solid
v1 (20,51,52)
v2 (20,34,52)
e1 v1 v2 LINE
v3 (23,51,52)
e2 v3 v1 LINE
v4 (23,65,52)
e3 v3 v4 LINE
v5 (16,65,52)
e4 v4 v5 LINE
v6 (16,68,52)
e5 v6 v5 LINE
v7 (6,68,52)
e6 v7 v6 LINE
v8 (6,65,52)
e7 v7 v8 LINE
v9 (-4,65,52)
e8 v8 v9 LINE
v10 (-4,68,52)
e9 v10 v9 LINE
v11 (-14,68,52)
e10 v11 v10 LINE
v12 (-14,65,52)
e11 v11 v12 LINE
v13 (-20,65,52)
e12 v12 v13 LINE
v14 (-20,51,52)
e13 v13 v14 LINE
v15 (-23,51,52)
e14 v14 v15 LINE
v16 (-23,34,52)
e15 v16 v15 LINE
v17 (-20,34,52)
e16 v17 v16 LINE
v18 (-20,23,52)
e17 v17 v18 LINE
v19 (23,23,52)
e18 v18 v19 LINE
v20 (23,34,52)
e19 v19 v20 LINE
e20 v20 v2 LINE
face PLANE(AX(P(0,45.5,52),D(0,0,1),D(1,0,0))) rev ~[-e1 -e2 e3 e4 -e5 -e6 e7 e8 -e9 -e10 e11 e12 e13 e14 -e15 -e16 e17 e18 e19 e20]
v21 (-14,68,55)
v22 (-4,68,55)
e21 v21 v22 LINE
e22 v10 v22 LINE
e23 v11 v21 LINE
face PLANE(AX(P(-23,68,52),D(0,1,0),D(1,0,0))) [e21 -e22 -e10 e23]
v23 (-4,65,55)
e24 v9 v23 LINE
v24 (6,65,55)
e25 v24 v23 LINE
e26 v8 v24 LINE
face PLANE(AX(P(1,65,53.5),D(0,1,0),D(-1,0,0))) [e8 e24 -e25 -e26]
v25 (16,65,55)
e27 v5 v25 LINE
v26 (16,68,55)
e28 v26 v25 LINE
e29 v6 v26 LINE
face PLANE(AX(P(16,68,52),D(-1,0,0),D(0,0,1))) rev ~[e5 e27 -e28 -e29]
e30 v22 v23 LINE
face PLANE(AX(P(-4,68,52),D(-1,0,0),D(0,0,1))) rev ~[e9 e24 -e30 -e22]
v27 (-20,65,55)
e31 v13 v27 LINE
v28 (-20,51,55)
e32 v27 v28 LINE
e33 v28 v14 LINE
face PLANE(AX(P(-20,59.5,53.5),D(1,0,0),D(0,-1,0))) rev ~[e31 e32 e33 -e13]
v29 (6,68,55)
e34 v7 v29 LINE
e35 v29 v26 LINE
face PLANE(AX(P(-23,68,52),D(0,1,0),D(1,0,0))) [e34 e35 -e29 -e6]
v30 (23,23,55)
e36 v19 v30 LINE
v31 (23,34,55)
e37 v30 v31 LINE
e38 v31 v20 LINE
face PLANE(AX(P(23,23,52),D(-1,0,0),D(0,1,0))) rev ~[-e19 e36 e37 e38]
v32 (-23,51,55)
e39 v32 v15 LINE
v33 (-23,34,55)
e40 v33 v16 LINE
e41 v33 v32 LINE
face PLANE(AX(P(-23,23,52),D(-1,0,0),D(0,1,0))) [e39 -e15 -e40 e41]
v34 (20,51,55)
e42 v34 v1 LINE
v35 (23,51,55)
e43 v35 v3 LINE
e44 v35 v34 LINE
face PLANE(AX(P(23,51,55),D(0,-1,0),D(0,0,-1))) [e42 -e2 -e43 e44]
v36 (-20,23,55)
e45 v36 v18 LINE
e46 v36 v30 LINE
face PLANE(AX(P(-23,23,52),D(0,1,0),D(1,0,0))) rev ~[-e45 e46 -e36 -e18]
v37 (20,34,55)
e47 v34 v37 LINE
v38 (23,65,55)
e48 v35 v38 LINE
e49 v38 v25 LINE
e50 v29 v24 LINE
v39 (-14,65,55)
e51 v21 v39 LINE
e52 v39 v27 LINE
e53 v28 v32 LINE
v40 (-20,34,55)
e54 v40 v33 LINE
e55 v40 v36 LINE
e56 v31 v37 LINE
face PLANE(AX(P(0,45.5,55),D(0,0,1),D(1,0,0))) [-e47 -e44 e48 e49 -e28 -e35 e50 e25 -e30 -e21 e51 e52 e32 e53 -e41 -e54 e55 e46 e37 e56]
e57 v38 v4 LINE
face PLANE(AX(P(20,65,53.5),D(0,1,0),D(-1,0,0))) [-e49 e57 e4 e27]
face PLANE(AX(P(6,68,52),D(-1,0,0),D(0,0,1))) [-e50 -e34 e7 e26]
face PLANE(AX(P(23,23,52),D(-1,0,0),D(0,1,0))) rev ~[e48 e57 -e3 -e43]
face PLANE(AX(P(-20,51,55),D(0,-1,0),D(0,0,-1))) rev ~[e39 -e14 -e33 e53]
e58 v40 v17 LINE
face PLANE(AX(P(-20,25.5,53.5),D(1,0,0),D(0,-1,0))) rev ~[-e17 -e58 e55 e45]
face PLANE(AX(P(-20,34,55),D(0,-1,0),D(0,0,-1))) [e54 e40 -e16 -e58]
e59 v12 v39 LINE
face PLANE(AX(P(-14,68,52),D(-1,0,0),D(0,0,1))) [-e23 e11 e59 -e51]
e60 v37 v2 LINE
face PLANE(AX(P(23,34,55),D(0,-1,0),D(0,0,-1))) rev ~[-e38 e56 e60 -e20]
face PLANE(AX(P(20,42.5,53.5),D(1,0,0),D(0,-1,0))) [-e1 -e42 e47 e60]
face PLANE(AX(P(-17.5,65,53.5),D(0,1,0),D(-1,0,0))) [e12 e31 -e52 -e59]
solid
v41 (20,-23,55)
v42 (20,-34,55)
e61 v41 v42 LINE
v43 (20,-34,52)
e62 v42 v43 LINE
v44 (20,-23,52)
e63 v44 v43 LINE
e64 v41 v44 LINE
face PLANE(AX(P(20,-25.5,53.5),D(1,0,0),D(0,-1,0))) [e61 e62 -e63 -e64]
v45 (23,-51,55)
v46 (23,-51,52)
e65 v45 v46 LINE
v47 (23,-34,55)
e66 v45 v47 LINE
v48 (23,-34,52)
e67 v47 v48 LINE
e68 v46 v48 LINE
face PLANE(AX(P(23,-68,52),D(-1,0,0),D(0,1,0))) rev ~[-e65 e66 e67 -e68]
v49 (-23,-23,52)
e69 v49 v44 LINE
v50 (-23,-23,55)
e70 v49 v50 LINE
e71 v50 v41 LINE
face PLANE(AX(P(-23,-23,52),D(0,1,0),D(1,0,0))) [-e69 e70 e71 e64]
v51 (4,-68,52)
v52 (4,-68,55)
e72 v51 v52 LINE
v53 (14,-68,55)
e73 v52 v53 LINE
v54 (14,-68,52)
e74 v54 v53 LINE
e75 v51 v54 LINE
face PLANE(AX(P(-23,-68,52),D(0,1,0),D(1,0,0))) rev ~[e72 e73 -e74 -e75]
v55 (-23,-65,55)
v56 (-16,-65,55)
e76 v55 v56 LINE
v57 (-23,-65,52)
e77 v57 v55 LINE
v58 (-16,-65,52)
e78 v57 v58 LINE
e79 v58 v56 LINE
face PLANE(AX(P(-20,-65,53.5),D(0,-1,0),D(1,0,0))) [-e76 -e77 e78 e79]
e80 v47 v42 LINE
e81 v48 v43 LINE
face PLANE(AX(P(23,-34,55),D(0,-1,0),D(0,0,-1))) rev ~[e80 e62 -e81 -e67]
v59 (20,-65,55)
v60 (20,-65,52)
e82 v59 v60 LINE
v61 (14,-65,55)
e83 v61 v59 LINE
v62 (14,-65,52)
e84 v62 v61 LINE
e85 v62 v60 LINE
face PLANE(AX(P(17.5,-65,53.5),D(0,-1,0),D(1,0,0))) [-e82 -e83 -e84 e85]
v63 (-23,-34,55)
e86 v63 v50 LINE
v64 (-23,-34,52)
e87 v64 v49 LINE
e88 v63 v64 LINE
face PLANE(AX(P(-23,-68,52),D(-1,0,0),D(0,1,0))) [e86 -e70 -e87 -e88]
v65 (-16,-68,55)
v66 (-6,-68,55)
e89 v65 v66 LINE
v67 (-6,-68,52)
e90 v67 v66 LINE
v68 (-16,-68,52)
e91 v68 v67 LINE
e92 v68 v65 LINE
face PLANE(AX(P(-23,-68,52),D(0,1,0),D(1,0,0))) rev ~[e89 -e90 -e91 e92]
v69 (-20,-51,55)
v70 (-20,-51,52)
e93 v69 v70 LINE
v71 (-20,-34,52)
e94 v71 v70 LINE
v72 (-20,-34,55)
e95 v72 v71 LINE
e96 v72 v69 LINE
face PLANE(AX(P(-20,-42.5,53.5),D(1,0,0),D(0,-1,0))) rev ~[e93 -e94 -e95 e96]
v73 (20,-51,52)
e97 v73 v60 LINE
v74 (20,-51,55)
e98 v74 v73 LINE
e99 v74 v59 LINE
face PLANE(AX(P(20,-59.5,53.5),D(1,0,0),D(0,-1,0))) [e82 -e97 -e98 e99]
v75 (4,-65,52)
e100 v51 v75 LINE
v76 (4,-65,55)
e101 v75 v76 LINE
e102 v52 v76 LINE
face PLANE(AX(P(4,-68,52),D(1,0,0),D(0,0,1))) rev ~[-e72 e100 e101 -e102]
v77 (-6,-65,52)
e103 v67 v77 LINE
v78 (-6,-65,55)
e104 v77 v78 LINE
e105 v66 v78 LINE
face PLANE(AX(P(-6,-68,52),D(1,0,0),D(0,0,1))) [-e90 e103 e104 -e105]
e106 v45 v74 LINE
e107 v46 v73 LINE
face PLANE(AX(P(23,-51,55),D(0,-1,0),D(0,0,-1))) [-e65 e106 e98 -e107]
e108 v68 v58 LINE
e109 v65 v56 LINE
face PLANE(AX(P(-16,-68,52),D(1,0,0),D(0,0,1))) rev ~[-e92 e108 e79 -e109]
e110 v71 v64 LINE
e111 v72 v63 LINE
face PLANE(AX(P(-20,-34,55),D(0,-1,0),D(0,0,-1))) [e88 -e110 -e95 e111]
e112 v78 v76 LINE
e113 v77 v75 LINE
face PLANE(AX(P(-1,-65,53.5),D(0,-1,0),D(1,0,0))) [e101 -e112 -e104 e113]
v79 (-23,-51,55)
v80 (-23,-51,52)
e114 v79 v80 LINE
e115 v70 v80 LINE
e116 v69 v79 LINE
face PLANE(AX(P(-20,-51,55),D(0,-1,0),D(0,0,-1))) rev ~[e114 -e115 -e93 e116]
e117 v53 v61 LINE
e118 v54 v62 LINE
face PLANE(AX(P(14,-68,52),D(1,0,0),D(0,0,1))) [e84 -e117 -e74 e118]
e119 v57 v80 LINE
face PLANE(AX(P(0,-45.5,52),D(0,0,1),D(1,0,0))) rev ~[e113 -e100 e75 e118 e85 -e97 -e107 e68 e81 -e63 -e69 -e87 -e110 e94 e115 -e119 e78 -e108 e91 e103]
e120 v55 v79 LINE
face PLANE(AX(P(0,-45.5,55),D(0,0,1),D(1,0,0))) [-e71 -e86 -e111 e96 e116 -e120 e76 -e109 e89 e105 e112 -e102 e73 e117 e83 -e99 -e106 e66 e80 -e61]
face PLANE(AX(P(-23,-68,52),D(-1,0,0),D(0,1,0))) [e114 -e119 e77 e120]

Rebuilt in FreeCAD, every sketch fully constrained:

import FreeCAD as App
import Part
import Sketcher


def add_polygon(sketch, points):
    """Adds a closed chain of lines whose ends are joined by coincident constraints."""
    first, n = sketch.GeometryCount, len(points)
    for a, b in zip(points, points[1:] + points[:1]):
        sketch.addGeometry(Part.LineSegment(App.Vector(*a, 0), App.Vector(*b, 0)), False)
    for i in range(n):
        sketch.addConstraint(Sketcher.Constraint("Coincident", first + i, 2, first + (i + 1) % n, 1))

doc = App.newDocument("Part")
body = doc.addObject("PartDesign::Body", "Body")

sketch1 = body.newObject("Sketcher::SketchObject", "Sketch")
sketch1.AttachmentSupport = (doc.getObject("XY_Plane"), [""])
sketch1.MapMode = "FlatFace"
add_polygon(sketch1, [(-8, 0), (-8, -3), (0, -3), (0, 0)])
sketch1.addConstraint([
    Sketcher.Constraint("Vertical", 0),
    Sketcher.Constraint("Horizontal", 1),
    Sketcher.Constraint("Vertical", 2),
    Sketcher.Constraint("Horizontal", 3),
    Sketcher.Constraint("Coincident", 2, 2, -1, 1),
    Sketcher.Constraint("DistanceX", 1, 1, 1, 2, 8.0),
    Sketcher.Constraint("DistanceY", 0, 2, 0, 1, 3.0),
])
pad1 = body.newObject("PartDesign::Pad", "Pad")
pad1.Profile = sketch1
pad1.Length = 3
pad1.Reversed = True
body2 = doc.addObject("PartDesign::Body", "Body001")
doc.recompute()

body.Placement = App.Placement(App.Vector(0, 0, 0), App.Rotation(App.Vector(1, 0, 0), 90))
boolean = body2.newObject("PartDesign::Boolean", "Boolean")
boolean.Type = "Fuse"
boolean.addObjects([body])
body3 = doc.addObject("PartDesign::Body", "Body002")
doc.recompute()

body2.Placement = App.Placement(App.Vector(-16, -68, 55), App.Rotation(App.Vector(0, 0, 1), 0))
boolean2 = body3.newObject("PartDesign::Boolean", "Boolean001")
boolean2.Type = "Fuse"
boolean2.addObjects([body2])
body4 = doc.addObject("PartDesign::Body", "Body003")

sketch2 = body4.newObject("Sketcher::SketchObject", "Sketch001")
sketch2.AttachmentSupport = (doc.getObject("XY_Plane003"), [""])
sketch2.MapMode = "FlatFace"
add_polygon(sketch2, [(-10, 0), (-10, -3), (0, -3), (0, 0)])
sketch2.addConstraint([
    Sketcher.Constraint("Vertical", 0),
    Sketcher.Constraint("Horizontal", 1),
    Sketcher.Constraint("Vertical", 2),
    Sketcher.Constraint("Horizontal", 3),
    Sketcher.Constraint("Coincident", 2, 2, -1, 1),
    Sketcher.Constraint("DistanceX", 1, 1, 1, 2, 10.0),
    Sketcher.Constraint("DistanceY", 0, 2, 0, 1, 3.0),
])
pad2 = body4.newObject("PartDesign::Pad", "Pad001")
pad2.Profile = sketch2
pad2.Length = 3
pad2.Reversed = True
body5 = doc.addObject("PartDesign::Body", "Body004")
doc.recompute()

body4.Placement = App.Placement(App.Vector(0, 0, 0), App.Rotation(App.Vector(1, 0, 0), 90))
boolean3 = body5.newObject("PartDesign::Boolean", "Boolean002")
boolean3.Type = "Fuse"
boolean3.addObjects([body4])
body6 = doc.addObject("PartDesign::Body", "Body005")
doc.recompute()

body5.Placement = App.Placement(App.Vector(4, -68, 55), App.Rotation(App.Vector(0, 0, 1), 0))
boolean4 = body6.newObject("PartDesign::Boolean", "Boolean003")
boolean4.Type = "Fuse"
boolean4.addObjects([body5])
body7 = doc.addObject("PartDesign::Body", "Body006")

sketch3 = body7.newObject("Sketcher::SketchObject", "Sketch002")
sketch3.AttachmentSupport = (doc.getObject("XY_Plane006"), [""])
sketch3.MapMode = "FlatFace"
add_polygon(sketch3, [(-7, 0), (-7, -3), (0, -3), (0, 0)])
sketch3.addConstraint([
    Sketcher.Constraint("Vertical", 0),
    Sketcher.Constraint("Horizontal", 1),
    Sketcher.Constraint("Vertical", 2),
    Sketcher.Constraint("Horizontal", 3),
    Sketcher.Constraint("Coincident", 2, 2, -1, 1),
    Sketcher.Constraint("DistanceX", 1, 1, 1, 2, 7.0),
    Sketcher.Constraint("DistanceY", 0, 2, 0, 1, 3.0),
])
pad3 = body7.newObject("PartDesign::Pad", "Pad002")
pad3.Profile = sketch3
pad3.Length = 3
pad3.Reversed = True
body8 = doc.addObject("PartDesign::Body", "Body007")
doc.recompute()

body7.Placement = App.Placement(App.Vector(0, 0, 0), App.Rotation(App.Vector(1, 0, 0), 90))
boolean5 = body8.newObject("PartDesign::Boolean", "Boolean004")
boolean5.Type = "Fuse"
boolean5.addObjects([body7])
body9 = doc.addObject("PartDesign::Body", "Body008")
body9.AllowCompound = True
doc.recompute()

body8.Placement = App.Placement(App.Vector(21, -68, 55), App.Rotation(App.Vector(0, 0, 1), 0))
boolean6 = body9.newObject("PartDesign::Boolean", "Boolean005")
boolean6.Type = "Fuse"
boolean6.addObjects([body8])
doc.recompute()

boolean7 = body9.newObject("PartDesign::Boolean", "Boolean006")
boolean7.Type = "Fuse"
boolean7.addObjects([body3])
doc.recompute()

boolean8 = body9.newObject("PartDesign::Boolean", "Boolean007")
boolean8.Type = "Fuse"
boolean8.addObjects([body6])
body10 = doc.addObject("PartDesign::Body", "Body009")
body10.AllowCompound = True
doc.recompute()

body9.Placement = App.Placement(App.Vector(0, 0, 0), App.Rotation(App.Vector(0, 0, 1), 180))
boolean9 = body10.newObject("PartDesign::Boolean", "Boolean008")
boolean9.Type = "Fuse"
boolean9.addObjects([body9])
body11 = doc.addObject("PartDesign::Body", "Body010")

sketch4 = body11.newObject("Sketcher::SketchObject", "Sketch003")
sketch4.AttachmentSupport = (doc.getObject("XY_Plane010"), [""])
sketch4.MapMode = "FlatFace"
add_polygon(sketch4, [(-8, 0), (-8, -3), (0, -3), (0, 0)])
sketch4.addConstraint([
    Sketcher.Constraint("Vertical", 0),
    Sketcher.Constraint("Horizontal", 1),
    Sketcher.Constraint("Vertical", 2),
    Sketcher.Constraint("Horizontal", 3),
    Sketcher.Constraint("Coincident", 2, 2, -1, 1),
    Sketcher.Constraint("DistanceX", 1, 1, 1, 2, 8.0),
    Sketcher.Constraint("DistanceY", 0, 2, 0, 1, 3.0),
])
pad4 = body11.newObject("PartDesign::Pad", "Pad003")
pad4.Profile = sketch4
pad4.Length = 3
pad4.Reversed = True
body12 = doc.addObject("PartDesign::Body", "Body011")
doc.recompute()

body11.Placement = App.Placement(App.Vector(0, 0, 0), App.Rotation(App.Vector(1, 0, 0), 90))
boolean10 = body12.newObject("PartDesign::Boolean", "Boolean009")
boolean10.Type = "Fuse"
boolean10.addObjects([body11])
body13 = doc.addObject("PartDesign::Body", "Body012")
doc.recompute()

body12.Placement = App.Placement(App.Vector(-16, -68, 55), App.Rotation(App.Vector(0, 0, 1), 0))
boolean11 = body13.newObject("PartDesign::Boolean", "Boolean010")
boolean11.Type = "Fuse"
boolean11.addObjects([body12])
body14 = doc.addObject("PartDesign::Body", "Body013")

sketch5 = body14.newObject("Sketcher::SketchObject", "Sketch004")
sketch5.AttachmentSupport = (doc.getObject("XY_Plane013"), [""])
sketch5.MapMode = "FlatFace"
add_polygon(sketch5, [(-10, 0), (-10, -3), (0, -3), (0, 0)])
sketch5.addConstraint([
    Sketcher.Constraint("Vertical", 0),
    Sketcher.Constraint("Horizontal", 1),
    Sketcher.Constraint("Vertical", 2),
    Sketcher.Constraint("Horizontal", 3),
    Sketcher.Constraint("Coincident", 2, 2, -1, 1),
    Sketcher.Constraint("DistanceX", 1, 1, 1, 2, 10.0),
    Sketcher.Constraint("DistanceY", 0, 2, 0, 1, 3.0),
])
pad5 = body14.newObject("PartDesign::Pad", "Pad004")
pad5.Profile = sketch5
pad5.Length = 3
pad5.Reversed = True
body15 = doc.addObject("PartDesign::Body", "Body014")
doc.recompute()

body14.Placement = App.Placement(App.Vector(0, 0, 0), App.Rotation(App.Vector(1, 0, 0), 90))
boolean12 = body15.newObject("PartDesign::Boolean", "Boolean011")
boolean12.Type = "Fuse"
boolean12.addObjects([body14])
body16 = doc.addObject("PartDesign::Body", "Body015")
doc.recompute()

body15.Placement = App.Placement(App.Vector(4, -68, 55), App.Rotation(App.Vector(0, 0, 1), 0))
boolean13 = body16.newObject("PartDesign::Boolean", "Boolean012")
boolean13.Type = "Fuse"
boolean13.addObjects([body15])
body17 = doc.addObject("PartDesign::Body", "Body016")

sketch6 = body17.newObject("Sketcher::SketchObject", "Sketch005")
sketch6.AttachmentSupport = (doc.getObject("XY_Plane016"), [""])
sketch6.MapMode = "FlatFace"
add_polygon(sketch6, [(-7, 0), (-7, -3), (0, -3), (0, 0)])
sketch6.addConstraint([
    Sketcher.Constraint("Vertical", 0),
    Sketcher.Constraint("Horizontal", 1),
    Sketcher.Constraint("Vertical", 2),
    Sketcher.Constraint("Horizontal", 3),
    Sketcher.Constraint("Coincident", 2, 2, -1, 1),
    Sketcher.Constraint("DistanceX", 1, 1, 1, 2, 7.0),
    Sketcher.Constraint("DistanceY", 0, 2, 0, 1, 3.0),
])
pad6 = body17.newObject("PartDesign::Pad", "Pad005")
pad6.Profile = sketch6
pad6.Length = 3
pad6.Reversed = True
body18 = doc.addObject("PartDesign::Body", "Body017")
doc.recompute()

body17.Placement = App.Placement(App.Vector(0, 0, 0), App.Rotation(App.Vector(1, 0, 0), 90))
boolean14 = body18.newObject("PartDesign::Boolean", "Boolean013")
boolean14.Type = "Fuse"
boolean14.addObjects([body17])
body19 = doc.addObject("PartDesign::Body", "Body018")
body19.AllowCompound = True
doc.recompute()

body18.Placement = App.Placement(App.Vector(21, -68, 55), App.Rotation(App.Vector(0, 0, 1), 0))
boolean15 = body19.newObject("PartDesign::Boolean", "Boolean014")
boolean15.Type = "Fuse"
boolean15.addObjects([body18])
doc.recompute()

boolean16 = body19.newObject("PartDesign::Boolean", "Boolean015")
boolean16.Type = "Fuse"
boolean16.addObjects([body13])
doc.recompute()

boolean17 = body19.newObject("PartDesign::Boolean", "Boolean016")
boolean17.Type = "Fuse"
boolean17.addObjects([body16])
doc.recompute()

boolean18 = body19.newObject("PartDesign::Boolean", "Boolean017")
boolean18.Type = "Fuse"
boolean18.addObjects([body10])
body20 = doc.addObject("PartDesign::Body", "Body019")

sketch7 = body20.newObject("Sketcher::SketchObject", "Sketch006")
sketch7.AttachmentSupport = (doc.getObject("YZ_Plane019"), [""])
sketch7.MapMode = "FlatFace"
sketch7.AttachmentOffset = App.Placement(App.Vector(0, 0, 24), App.Rotation())
add_polygon(sketch7, [(-17, 85), (-17, 88), (-34, 88), (-34, 85)])
sketch7.addConstraint([
    Sketcher.Constraint("Vertical", 0),
    Sketcher.Constraint("Horizontal", 1),
    Sketcher.Constraint("Vertical", 2),
    Sketcher.Constraint("Horizontal", 3),
    Sketcher.Constraint("DistanceX", 1, 2, 1, 1, 17.0),
    Sketcher.Constraint("DistanceY", 0, 1, 0, 2, 3.0),
    Sketcher.Constraint("DistanceX", 0, 2, -1, 1, 17.0),
    Sketcher.Constraint("DistanceY", -1, 1, 0, 2, 88.0),
])
pad7 = body20.newObject("PartDesign::Pad", "Pad006")
pad7.Profile = sketch7
pad7.Length = 3
pad7.Reversed = True
body21 = doc.addObject("PartDesign::Body", "Body020")

sketch8 = body21.newObject("Sketcher::SketchObject", "Sketch007")
sketch8.AttachmentSupport = (doc.getObject("YZ_Plane020"), [""])
sketch8.MapMode = "FlatFace"
sketch8.AttachmentOffset = App.Placement(App.Vector(0, 0, 24), App.Rotation())
add_polygon(sketch8, [(17, 85), (17, 88), (0, 88), (0, 85)])
sketch8.addConstraint([
    Sketcher.Constraint("Vertical", 0),
    Sketcher.Constraint("Horizontal", 1),
    Sketcher.Constraint("Vertical", 2),
    Sketcher.Constraint("Horizontal", 3),
    Sketcher.Constraint("PointOnObject", 1, 2, -2),
    Sketcher.Constraint("DistanceX", 1, 2, 1, 1, 17.0),
    Sketcher.Constraint("DistanceY", 0, 1, 0, 2, 3.0),
    Sketcher.Constraint("DistanceY", -1, 1, 0, 2, 88.0),
])
pad8 = body21.newObject("PartDesign::Pad", "Pad007")
pad8.Profile = sketch8
pad8.Length = 3
pad8.Reversed = True
body22 = doc.addObject("PartDesign::Body", "Body021")

sketch9 = body22.newObject("Sketcher::SketchObject", "Sketch008")
sketch9.AttachmentSupport = (doc.getObject("YZ_Plane021"), [""])
sketch9.MapMode = "FlatFace"
sketch9.AttachmentOffset = App.Placement(App.Vector(0, 0, 24), App.Rotation())
add_polygon(sketch9, [(51, 85), (51, 88), (34, 88), (34, 85)])
sketch9.addConstraint([
    Sketcher.Constraint("Vertical", 0),
    Sketcher.Constraint("Horizontal", 1),
    Sketcher.Constraint("Vertical", 2),
    Sketcher.Constraint("Horizontal", 3),
    Sketcher.Constraint("DistanceX", 1, 2, 1, 1, 17.0),
    Sketcher.Constraint("DistanceY", 0, 1, 0, 2, 3.0),
    Sketcher.Constraint("DistanceX", -1, 1, 0, 2, 51.0),
    Sketcher.Constraint("DistanceY", -1, 1, 0, 2, 88.0),
])
pad9 = body22.newObject("PartDesign::Pad", "Pad008")
pad9.Profile = sketch9
pad9.Length = 3
pad9.Reversed = True
body23 = doc.addObject("PartDesign::Body", "Body022")
body23.AllowCompound = True

sketch10 = body23.newObject("Sketcher::SketchObject", "Sketch009")
sketch10.AttachmentSupport = (doc.getObject("YZ_Plane022"), [""])
sketch10.MapMode = "FlatFace"
sketch10.AttachmentOffset = App.Placement(App.Vector(0, 0, 24), App.Rotation())
add_polygon(sketch10, [(-51, 85), (-51, 88), (-68, 88), (-68, 85)])
sketch10.addConstraint([
    Sketcher.Constraint("Vertical", 0),
    Sketcher.Constraint("Horizontal", 1),
    Sketcher.Constraint("Vertical", 2),
    Sketcher.Constraint("Horizontal", 3),
    Sketcher.Constraint("DistanceX", 1, 2, 1, 1, 17.0),
    Sketcher.Constraint("DistanceY", 0, 1, 0, 2, 3.0),
    Sketcher.Constraint("DistanceX", 0, 2, -1, 1, 51.0),
    Sketcher.Constraint("DistanceY", -1, 1, 0, 2, 88.0),
])
pad10 = body23.newObject("PartDesign::Pad", "Pad009")
pad10.Profile = sketch10
pad10.Length = 3
pad10.Reversed = True
doc.recompute()

boolean19 = body23.newObject("PartDesign::Boolean", "Boolean018")
boolean19.Type = "Fuse"
boolean19.addObjects([body20])
doc.recompute()

boolean20 = body23.newObject("PartDesign::Boolean", "Boolean019")
boolean20.Type = "Fuse"
boolean20.addObjects([body21])
doc.recompute()

boolean21 = body23.newObject("PartDesign::Boolean", "Boolean020")
boolean21.Type = "Fuse"
boolean21.addObjects([body22])
body24 = doc.addObject("PartDesign::Body", "Body023")
body24.AllowCompound = True
doc.recompute()

body23.Placement = App.Placement(App.Vector(-1, 0, 0), App.Rotation(App.Vector(0, 0, 1), 0))
boolean22 = body24.newObject("PartDesign::Boolean", "Boolean021")
boolean22.Type = "Fuse"
boolean22.addObjects([body23])
body25 = doc.addObject("PartDesign::Body", "Body024")

sketch11 = body25.newObject("Sketcher::SketchObject", "Sketch010")
sketch11.AttachmentSupport = (doc.getObject("YZ_Plane024"), [""])
sketch11.MapMode = "FlatFace"
sketch11.AttachmentOffset = App.Placement(App.Vector(0, 0, 24), App.Rotation())
add_polygon(sketch11, [(0, 85), (0, 88), (-17, 88), (-17, 85)])
sketch11.addConstraint([
    Sketcher.Constraint("Vertical", 0),
    Sketcher.Constraint("Horizontal", 1),
    Sketcher.Constraint("Vertical", 2),
    Sketcher.Constraint("Horizontal", 3),
    Sketcher.Constraint("PointOnObject", 0, 2, -2),
    Sketcher.Constraint("DistanceX", 1, 2, 1, 1, 17.0),
    Sketcher.Constraint("DistanceY", 0, 1, 0, 2, 3.0),
    Sketcher.Constraint("DistanceY", -1, 1, 0, 2, 88.0),
])
pad11 = body25.newObject("PartDesign::Pad", "Pad010")
pad11.Profile = sketch11
pad11.Length = 3
pad11.Reversed = True
body26 = doc.addObject("PartDesign::Body", "Body025")

sketch12 = body26.newObject("Sketcher::SketchObject", "Sketch011")
sketch12.AttachmentSupport = (doc.getObject("YZ_Plane025"), [""])
sketch12.MapMode = "FlatFace"
sketch12.AttachmentOffset = App.Placement(App.Vector(0, 0, 24), App.Rotation())
add_polygon(sketch12, [(34, 85), (34, 88), (17, 88), (17, 85)])
sketch12.addConstraint([
    Sketcher.Constraint("Vertical", 0),
    Sketcher.Constraint("Horizontal", 1),
    Sketcher.Constraint("Vertical", 2),
    Sketcher.Constraint("Horizontal", 3),
    Sketcher.Constraint("DistanceX", 1, 2, 1, 1, 17.0),
    Sketcher.Constraint("DistanceY", 0, 1, 0, 2, 3.0),
    Sketcher.Constraint("DistanceX", -1, 1, 0, 2, 34.0),
    Sketcher.Constraint("DistanceY", -1, 1, 0, 2, 88.0),
])
pad12 = body26.newObject("PartDesign::Pad", "Pad011")
pad12.Profile = sketch12
pad12.Length = 3
pad12.Reversed = True
body27 = doc.addObject("PartDesign::Body", "Body026")

sketch13 = body27.newObject("Sketcher::SketchObject", "Sketch012")
sketch13.AttachmentSupport = (doc.getObject("YZ_Plane026"), [""])
sketch13.MapMode = "FlatFace"
sketch13.AttachmentOffset = App.Placement(App.Vector(0, 0, 24), App.Rotation())
add_polygon(sketch13, [(68, 85), (68, 88), (51, 88), (51, 85)])
sketch13.addConstraint([
    Sketcher.Constraint("Vertical", 0),
    Sketcher.Constraint("Horizontal", 1),
    Sketcher.Constraint("Vertical", 2),
    Sketcher.Constraint("Horizontal", 3),
    Sketcher.Constraint("DistanceX", 1, 2, 1, 1, 17.0),
    Sketcher.Constraint("DistanceY", 0, 1, 0, 2, 3.0),
    Sketcher.Constraint("DistanceX", -1, 1, 0, 2, 68.0),
    Sketcher.Constraint("DistanceY", -1, 1, 0, 2, 88.0),
])
pad13 = body27.newObject("PartDesign::Pad", "Pad012")
pad13.Profile = sketch13
pad13.Length = 3
pad13.Reversed = True
body28 = doc.addObject("PartDesign::Body", "Body027")
body28.AllowCompound = True

sketch14 = body28.newObject("Sketcher::SketchObject", "Sketch013")
sketch14.AttachmentSupport = (doc.getObject("YZ_Plane027"), [""])
sketch14.MapMode = "FlatFace"
sketch14.AttachmentOffset = App.Placement(App.Vector(0, 0, 24), App.Rotation())
add_polygon(sketch14, [(-34, 85), (-34, 88), (-51, 88), (-51, 85)])
sketch14.addConstraint([
    Sketcher.Constraint("Vertical", 0),
    Sketcher.Constraint("Horizontal", 1),
    Sketcher.Constraint("Vertical", 2),
    Sketcher.Constraint("Horizontal", 3),
    Sketcher.Constraint("DistanceX", 1, 2, 1, 1, 17.0),
    Sketcher.Constraint("DistanceY", 0, 1, 0, 2, 3.0),
    Sketcher.Constraint("DistanceX", 0, 2, -1, 1, 34.0),
    Sketcher.Constraint("DistanceY", -1, 1, 0, 2, 88.0),
])
pad14 = body28.newObject("PartDesign::Pad", "Pad013")
pad14.Profile = sketch14
pad14.Length = 3
pad14.Reversed = True
doc.recompute()

boolean23 = body28.newObject("PartDesign::Boolean", "Boolean022")
boolean23.Type = "Fuse"
boolean23.addObjects([body25])
doc.recompute()

boolean24 = body28.newObject("PartDesign::Boolean", "Boolean023")
boolean24.Type = "Fuse"
boolean24.addObjects([body26])
doc.recompute()

boolean25 = body28.newObject("PartDesign::Boolean", "Boolean024")
boolean25.Type = "Fuse"
boolean25.addObjects([body27])
body29 = doc.addObject("PartDesign::Body", "Body028")
body29.AllowCompound = True
doc.recompute()

body28.Placement = App.Placement(App.Vector(-44, 0, 0), App.Rotation(App.Vector(0, 0, 1), 0))
boolean26 = body29.newObject("PartDesign::Boolean", "Boolean025")
boolean26.Type = "Fuse"
boolean26.addObjects([body28])
doc.recompute()

boolean27 = body29.newObject("PartDesign::Boolean", "Boolean026")
boolean27.Type = "Fuse"
boolean27.addObjects([body24])
body30 = doc.addObject("PartDesign::Body", "Body029")
body30.AllowCompound = True
doc.recompute()

body29.Placement = App.Placement(App.Vector(0, 0, -33), App.Rotation(App.Vector(0, 0, 1), 0))
boolean28 = body30.newObject("PartDesign::Boolean", "Boolean027")
boolean28.Type = "Fuse"
boolean28.addObjects([body29])
body31 = doc.addObject("PartDesign::Body", "Body030")

sketch15 = body31.newObject("Sketcher::SketchObject", "Sketch014")
sketch15.AttachmentSupport = (doc.getObject("XY_Plane030"), [""])
sketch15.MapMode = "FlatFace"
sketch15.AttachmentOffset = App.Placement(App.Vector(0, 0, 52), App.Rotation())
add_polygon(sketch15, [(-23, -23), (-23, -68), (23, -68), (23, -23)])
sketch15.addConstraint([
    Sketcher.Constraint("Vertical", 0),
    Sketcher.Constraint("Horizontal", 1),
    Sketcher.Constraint("Vertical", 2),
    Sketcher.Constraint("Horizontal", 3),
    Sketcher.Constraint("DistanceX", 1, 1, 1, 2, 46.0),
    Sketcher.Constraint("DistanceY", 0, 2, 0, 1, 45.0),
    Sketcher.Constraint("DistanceX", 0, 2, -1, 1, 23.0),
    Sketcher.Constraint("DistanceY", 0, 2, -1, 1, 68.0),
])
pad15 = body31.newObject("PartDesign::Pad", "Pad014")
pad15.Profile = sketch15
pad15.Length = 3
body32 = doc.addObject("PartDesign::Body", "Body031")
body32.AllowCompound = True

sketch16 = body32.newObject("Sketcher::SketchObject", "Sketch015")
sketch16.AttachmentSupport = (doc.getObject("XY_Plane031"), [""])
sketch16.MapMode = "FlatFace"
sketch16.AttachmentOffset = App.Placement(App.Vector(0, 0, 52), App.Rotation())
add_polygon(sketch16, [(-23, 68), (-23, 23), (23, 23), (23, 68)])
sketch16.addConstraint([
    Sketcher.Constraint("Vertical", 0),
    Sketcher.Constraint("Horizontal", 1),
    Sketcher.Constraint("Vertical", 2),
    Sketcher.Constraint("Horizontal", 3),
    Sketcher.Constraint("DistanceX", 1, 1, 1, 2, 46.0),
    Sketcher.Constraint("DistanceY", 0, 2, 0, 1, 45.0),
    Sketcher.Constraint("DistanceX", 0, 2, -1, 1, 23.0),
    Sketcher.Constraint("DistanceY", -1, 1, 0, 2, 23.0),
])
pad16 = body32.newObject("PartDesign::Pad", "Pad015")
pad16.Profile = sketch16
pad16.Length = 3
doc.recompute()

boolean29 = body32.newObject("PartDesign::Boolean", "Boolean028")
boolean29.Type = "Fuse"
boolean29.addObjects([body31])
doc.recompute()

boolean30 = body32.newObject("PartDesign::Boolean", "Boolean029")
boolean30.Type = "Common"
boolean30.addObjects([body30])
body33 = doc.addObject("PartDesign::Body", "Body032")

sketch17 = body33.newObject("Sketcher::SketchObject", "Sketch016")
sketch17.AttachmentSupport = (doc.getObject("XY_Plane032"), [""])
sketch17.MapMode = "FlatFace"
sketch17.AttachmentOffset = App.Placement(App.Vector(0, 0, 52), App.Rotation())
add_polygon(sketch17, [(-23, -23), (-23, -68), (23, -68), (23, -23)])
sketch17.addConstraint([
    Sketcher.Constraint("Vertical", 0),
    Sketcher.Constraint("Horizontal", 1),
    Sketcher.Constraint("Vertical", 2),
    Sketcher.Constraint("Horizontal", 3),
    Sketcher.Constraint("DistanceX", 1, 1, 1, 2, 46.0),
    Sketcher.Constraint("DistanceY", 0, 2, 0, 1, 45.0),
    Sketcher.Constraint("DistanceX", 0, 2, -1, 1, 23.0),
    Sketcher.Constraint("DistanceY", 0, 2, -1, 1, 68.0),
])
pad17 = body33.newObject("PartDesign::Pad", "Pad016")
pad17.Profile = sketch17
pad17.Length = 3
body34 = doc.addObject("PartDesign::Body", "Body033")
body34.AllowCompound = True

sketch18 = body34.newObject("Sketcher::SketchObject", "Sketch017")
sketch18.AttachmentSupport = (doc.getObject("XY_Plane033"), [""])
sketch18.MapMode = "FlatFace"
sketch18.AttachmentOffset = App.Placement(App.Vector(0, 0, 52), App.Rotation())
add_polygon(sketch18, [(-23, 68), (-23, 23), (23, 23), (23, 68)])
sketch18.addConstraint([
    Sketcher.Constraint("Vertical", 0),
    Sketcher.Constraint("Horizontal", 1),
    Sketcher.Constraint("Vertical", 2),
    Sketcher.Constraint("Horizontal", 3),
    Sketcher.Constraint("DistanceX", 1, 1, 1, 2, 46.0),
    Sketcher.Constraint("DistanceY", 0, 2, 0, 1, 45.0),
    Sketcher.Constraint("DistanceX", 0, 2, -1, 1, 23.0),
    Sketcher.Constraint("DistanceY", -1, 1, 0, 2, 23.0),
])
pad18 = body34.newObject("PartDesign::Pad", "Pad017")
pad18.Profile = sketch18
pad18.Length = 3
doc.recompute()

boolean31 = body34.newObject("PartDesign::Boolean", "Boolean030")
boolean31.Type = "Fuse"
boolean31.addObjects([body33])
doc.recompute()

boolean32 = body34.newObject("PartDesign::Boolean", "Boolean031")
boolean32.Type = "Cut"
boolean32.addObjects([body32])
doc.recompute()

boolean33 = body34.newObject("PartDesign::Boolean", "Boolean032")
boolean33.Type = "Cut"
boolean33.addObjects([body19])

doc.recompute()
